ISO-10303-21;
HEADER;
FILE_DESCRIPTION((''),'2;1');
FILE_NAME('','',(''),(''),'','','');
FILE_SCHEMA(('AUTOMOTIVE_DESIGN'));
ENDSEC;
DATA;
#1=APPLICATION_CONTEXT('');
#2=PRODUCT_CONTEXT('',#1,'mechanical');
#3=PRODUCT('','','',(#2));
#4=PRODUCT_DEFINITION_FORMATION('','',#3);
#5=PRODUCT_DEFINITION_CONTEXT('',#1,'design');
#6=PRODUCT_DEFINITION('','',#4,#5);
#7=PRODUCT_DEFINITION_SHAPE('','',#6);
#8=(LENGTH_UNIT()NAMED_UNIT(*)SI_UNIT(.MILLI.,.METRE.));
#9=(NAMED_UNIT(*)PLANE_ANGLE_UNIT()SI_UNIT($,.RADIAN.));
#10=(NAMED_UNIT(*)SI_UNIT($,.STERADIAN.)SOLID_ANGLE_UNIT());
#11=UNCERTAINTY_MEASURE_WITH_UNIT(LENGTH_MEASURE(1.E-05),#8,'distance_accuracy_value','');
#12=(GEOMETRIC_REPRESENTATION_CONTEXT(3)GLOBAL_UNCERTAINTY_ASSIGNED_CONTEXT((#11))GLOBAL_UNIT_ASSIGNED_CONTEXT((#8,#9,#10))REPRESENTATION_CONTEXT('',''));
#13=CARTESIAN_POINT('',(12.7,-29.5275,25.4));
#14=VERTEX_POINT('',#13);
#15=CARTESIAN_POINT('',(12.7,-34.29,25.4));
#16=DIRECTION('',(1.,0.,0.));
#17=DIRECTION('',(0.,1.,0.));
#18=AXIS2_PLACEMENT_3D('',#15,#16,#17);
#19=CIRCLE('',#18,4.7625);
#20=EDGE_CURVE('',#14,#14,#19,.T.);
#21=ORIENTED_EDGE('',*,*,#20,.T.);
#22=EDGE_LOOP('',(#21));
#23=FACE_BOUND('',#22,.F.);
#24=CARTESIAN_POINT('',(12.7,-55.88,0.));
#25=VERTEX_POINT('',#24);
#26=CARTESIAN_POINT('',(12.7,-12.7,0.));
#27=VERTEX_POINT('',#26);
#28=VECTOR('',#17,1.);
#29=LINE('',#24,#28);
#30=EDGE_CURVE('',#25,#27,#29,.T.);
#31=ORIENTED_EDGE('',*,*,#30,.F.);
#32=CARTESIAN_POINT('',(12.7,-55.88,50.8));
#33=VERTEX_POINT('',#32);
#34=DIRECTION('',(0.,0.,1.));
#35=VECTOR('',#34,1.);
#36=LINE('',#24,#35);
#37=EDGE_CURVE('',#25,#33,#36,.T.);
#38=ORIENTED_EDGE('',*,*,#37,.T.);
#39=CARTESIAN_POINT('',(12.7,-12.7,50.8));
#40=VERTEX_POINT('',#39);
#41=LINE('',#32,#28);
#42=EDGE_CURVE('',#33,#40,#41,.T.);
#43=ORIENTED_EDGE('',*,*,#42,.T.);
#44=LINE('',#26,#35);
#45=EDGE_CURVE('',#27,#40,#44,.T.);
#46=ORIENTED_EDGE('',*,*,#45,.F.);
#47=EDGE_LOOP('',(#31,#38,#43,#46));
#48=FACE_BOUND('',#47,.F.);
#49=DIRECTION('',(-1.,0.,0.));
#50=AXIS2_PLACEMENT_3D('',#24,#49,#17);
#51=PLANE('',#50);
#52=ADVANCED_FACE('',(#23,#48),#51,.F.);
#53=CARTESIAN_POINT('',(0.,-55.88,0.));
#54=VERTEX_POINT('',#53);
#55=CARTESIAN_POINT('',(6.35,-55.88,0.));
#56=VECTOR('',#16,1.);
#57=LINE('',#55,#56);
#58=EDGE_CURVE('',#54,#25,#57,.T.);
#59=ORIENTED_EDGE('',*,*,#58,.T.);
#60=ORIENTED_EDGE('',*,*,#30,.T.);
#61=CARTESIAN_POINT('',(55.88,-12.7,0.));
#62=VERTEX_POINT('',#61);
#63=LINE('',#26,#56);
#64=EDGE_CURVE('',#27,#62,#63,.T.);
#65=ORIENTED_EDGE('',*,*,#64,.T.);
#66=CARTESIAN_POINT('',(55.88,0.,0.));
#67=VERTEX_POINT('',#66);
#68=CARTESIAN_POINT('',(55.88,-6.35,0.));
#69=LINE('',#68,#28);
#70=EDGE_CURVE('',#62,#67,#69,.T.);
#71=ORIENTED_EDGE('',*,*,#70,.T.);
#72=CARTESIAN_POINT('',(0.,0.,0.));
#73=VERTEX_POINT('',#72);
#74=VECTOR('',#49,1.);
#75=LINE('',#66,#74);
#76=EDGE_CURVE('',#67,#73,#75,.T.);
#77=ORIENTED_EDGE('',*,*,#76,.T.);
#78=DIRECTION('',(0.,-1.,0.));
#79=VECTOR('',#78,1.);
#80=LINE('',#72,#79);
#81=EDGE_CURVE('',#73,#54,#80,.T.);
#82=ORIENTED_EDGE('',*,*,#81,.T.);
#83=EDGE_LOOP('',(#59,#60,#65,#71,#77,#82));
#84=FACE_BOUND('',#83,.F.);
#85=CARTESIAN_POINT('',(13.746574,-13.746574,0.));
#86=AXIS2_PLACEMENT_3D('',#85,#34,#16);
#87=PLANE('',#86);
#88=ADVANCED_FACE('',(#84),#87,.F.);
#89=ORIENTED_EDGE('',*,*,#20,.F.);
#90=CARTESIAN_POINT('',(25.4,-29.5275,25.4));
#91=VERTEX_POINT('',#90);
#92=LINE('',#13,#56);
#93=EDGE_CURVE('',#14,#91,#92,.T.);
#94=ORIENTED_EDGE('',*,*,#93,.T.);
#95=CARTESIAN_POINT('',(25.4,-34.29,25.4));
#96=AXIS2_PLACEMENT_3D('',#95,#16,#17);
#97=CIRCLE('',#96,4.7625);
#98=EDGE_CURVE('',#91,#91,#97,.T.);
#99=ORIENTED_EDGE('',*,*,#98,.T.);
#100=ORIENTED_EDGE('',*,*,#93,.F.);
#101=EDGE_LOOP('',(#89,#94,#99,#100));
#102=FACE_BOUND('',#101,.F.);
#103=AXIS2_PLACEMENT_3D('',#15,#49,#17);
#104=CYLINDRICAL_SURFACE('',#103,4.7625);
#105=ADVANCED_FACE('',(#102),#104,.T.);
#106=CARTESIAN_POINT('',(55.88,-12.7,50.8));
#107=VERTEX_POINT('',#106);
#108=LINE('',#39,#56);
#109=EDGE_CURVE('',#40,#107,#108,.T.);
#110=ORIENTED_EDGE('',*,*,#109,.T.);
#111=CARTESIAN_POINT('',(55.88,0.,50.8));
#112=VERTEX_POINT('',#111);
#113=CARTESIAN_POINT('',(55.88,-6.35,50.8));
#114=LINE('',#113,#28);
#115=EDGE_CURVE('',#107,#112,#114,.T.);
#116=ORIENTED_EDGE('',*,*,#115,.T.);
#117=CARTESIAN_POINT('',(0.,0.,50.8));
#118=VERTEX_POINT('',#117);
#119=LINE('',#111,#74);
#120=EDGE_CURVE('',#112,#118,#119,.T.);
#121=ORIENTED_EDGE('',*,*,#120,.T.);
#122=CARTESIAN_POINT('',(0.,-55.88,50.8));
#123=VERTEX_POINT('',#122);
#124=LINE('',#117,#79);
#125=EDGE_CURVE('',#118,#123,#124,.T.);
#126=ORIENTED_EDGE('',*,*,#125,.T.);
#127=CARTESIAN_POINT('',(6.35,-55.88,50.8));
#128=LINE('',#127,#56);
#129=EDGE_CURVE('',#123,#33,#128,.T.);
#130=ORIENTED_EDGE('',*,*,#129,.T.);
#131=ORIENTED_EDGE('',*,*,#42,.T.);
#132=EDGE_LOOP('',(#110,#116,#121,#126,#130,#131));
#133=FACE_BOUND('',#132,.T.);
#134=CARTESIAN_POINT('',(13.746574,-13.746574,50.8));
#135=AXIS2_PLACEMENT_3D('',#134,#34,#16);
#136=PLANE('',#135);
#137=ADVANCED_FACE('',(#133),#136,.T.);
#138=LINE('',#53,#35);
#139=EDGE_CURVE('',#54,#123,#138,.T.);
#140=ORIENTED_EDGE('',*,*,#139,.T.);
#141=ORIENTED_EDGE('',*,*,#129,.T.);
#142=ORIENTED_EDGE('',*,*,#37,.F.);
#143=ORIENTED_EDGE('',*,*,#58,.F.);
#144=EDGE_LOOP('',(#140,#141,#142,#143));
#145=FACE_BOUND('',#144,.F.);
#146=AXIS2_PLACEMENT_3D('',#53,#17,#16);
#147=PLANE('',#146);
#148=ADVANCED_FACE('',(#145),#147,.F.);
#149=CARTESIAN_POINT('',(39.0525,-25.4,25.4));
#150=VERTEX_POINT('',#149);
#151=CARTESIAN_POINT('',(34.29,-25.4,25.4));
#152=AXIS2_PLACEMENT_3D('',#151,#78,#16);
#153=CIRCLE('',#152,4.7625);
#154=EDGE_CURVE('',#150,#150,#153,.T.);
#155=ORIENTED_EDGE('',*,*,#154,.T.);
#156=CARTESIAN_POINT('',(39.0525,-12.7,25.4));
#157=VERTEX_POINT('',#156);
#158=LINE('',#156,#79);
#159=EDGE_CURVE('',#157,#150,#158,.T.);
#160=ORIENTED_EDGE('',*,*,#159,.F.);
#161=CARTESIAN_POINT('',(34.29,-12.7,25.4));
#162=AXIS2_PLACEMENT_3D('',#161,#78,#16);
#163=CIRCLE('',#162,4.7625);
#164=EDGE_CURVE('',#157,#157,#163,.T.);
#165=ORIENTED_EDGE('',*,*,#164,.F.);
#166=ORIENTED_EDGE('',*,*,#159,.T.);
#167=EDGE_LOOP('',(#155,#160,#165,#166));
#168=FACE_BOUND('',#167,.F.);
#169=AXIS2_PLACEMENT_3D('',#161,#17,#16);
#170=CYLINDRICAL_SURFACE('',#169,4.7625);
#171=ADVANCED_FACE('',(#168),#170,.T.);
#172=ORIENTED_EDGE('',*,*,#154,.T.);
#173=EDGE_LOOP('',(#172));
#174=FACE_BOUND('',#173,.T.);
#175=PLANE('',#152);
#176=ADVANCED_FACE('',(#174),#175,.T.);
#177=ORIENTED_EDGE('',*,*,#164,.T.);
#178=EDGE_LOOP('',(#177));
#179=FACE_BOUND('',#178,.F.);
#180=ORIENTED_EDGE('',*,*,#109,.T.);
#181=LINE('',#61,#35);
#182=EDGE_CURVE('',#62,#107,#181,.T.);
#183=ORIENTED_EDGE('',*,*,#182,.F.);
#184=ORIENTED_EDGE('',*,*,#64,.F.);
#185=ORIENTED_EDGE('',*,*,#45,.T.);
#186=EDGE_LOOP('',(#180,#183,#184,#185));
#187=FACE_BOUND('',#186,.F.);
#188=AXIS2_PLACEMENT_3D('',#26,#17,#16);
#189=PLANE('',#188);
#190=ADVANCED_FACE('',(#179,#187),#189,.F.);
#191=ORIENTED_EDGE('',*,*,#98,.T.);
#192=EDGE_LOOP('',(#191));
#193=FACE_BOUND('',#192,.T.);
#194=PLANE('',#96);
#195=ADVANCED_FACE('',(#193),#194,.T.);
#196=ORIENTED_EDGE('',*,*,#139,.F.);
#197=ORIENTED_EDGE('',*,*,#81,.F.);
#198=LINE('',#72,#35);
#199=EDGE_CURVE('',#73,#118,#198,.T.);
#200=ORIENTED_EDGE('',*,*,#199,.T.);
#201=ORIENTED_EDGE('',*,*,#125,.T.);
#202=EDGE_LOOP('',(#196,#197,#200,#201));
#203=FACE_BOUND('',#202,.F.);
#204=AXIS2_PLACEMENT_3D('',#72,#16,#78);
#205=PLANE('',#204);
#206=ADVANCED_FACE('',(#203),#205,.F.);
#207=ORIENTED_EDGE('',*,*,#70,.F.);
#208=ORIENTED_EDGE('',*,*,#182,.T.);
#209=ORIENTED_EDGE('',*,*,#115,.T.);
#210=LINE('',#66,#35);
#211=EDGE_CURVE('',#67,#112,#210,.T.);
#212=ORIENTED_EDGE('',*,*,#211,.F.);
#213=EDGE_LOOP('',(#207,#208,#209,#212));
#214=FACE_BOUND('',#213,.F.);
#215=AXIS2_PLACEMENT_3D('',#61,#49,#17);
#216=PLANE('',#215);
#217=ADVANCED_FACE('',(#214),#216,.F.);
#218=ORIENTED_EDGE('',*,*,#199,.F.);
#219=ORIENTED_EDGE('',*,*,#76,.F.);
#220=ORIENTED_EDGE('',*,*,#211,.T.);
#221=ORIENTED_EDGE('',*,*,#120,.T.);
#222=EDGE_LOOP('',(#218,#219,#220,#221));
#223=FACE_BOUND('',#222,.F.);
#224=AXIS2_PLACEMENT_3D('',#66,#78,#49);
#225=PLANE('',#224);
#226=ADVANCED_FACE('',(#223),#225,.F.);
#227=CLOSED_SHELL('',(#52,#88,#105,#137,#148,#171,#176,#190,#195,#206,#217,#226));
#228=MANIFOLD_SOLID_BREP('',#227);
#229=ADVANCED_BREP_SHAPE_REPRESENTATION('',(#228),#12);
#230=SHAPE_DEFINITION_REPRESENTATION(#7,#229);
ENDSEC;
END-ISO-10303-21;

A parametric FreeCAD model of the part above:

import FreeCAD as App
import Part
import Sketcher

V = App.Vector
Q = App.Units.Quantity


def add_polygon(sketch, points):
    """Adds a closed chain of lines whose ends are joined by coincident constraints."""
    first, n = sketch.GeometryCount, len(points)
    for a, b in zip(points, points[1:] + points[:1]):
        sketch.addGeometry(Part.LineSegment(App.Vector(*a, 0), App.Vector(*b, 0)), False)
    for i in range(n):
        sketch.addConstraint(Sketcher.Constraint("Coincident", first + i, 2, first + (i + 1) % n, 1))

doc = App.newDocument("Part")
body = doc.addObject("PartDesign::Body", "Body")

sketch1 = body.newObject("Sketcher::SketchObject", "Sketch")
sketch1.AttachmentSupport = (doc.getObject("XY_Plane"), [""])
sketch1.MapMode = "FlatFace"
add_polygon(sketch1, [(0, 0), (0, -56), (13, -56), (13, -13), (56, -13), (56, 0)])
sketch1.addConstraint([
    Sketcher.Constraint("Vertical", 0),
    Sketcher.Constraint("Horizontal", 1),
    Sketcher.Constraint("Vertical", 2),
    Sketcher.Constraint("Horizontal", 3),
    Sketcher.Constraint("Vertical", 4),
    Sketcher.Constraint("Horizontal", 5),
    Sketcher.Constraint("Coincident", 5, 2, -1, 1),
    Sketcher.Constraint("Equal", 5, 0),
    Sketcher.Constraint("Equal", 3, 2),
    Sketcher.Constraint("DistanceX", 1, 1, 1, 2, Q("0.5 in")),
    Sketcher.Constraint("DistanceX", 3, 1, 3, 2, Q("1.7 in")),
])
pad1 = body.newObject("PartDesign::Pad", "Pad")
pad1.Profile = sketch1
pad1.Length = Q("2 in")

sketch2 = body.newObject("Sketcher::SketchObject", "Sketch001")
sketch2.AttachmentSupport = (doc.getObject("XZ_Plane"), [""])
sketch2.MapMode = "FlatFace"
sketch2.AttachmentOffset = App.Placement(V(0, 0, 0.5 * 25.4), App.Rotation())
sketch2.addGeometry(Part.Circle(V(34.3, 25.4, 0), V(0, 0, 1), 4.8), False)
sketch2.addConstraint([
    Sketcher.Constraint("Diameter", 0, Q("0.375 in")),
    Sketcher.Constraint("DistanceY", -1, 1, 0, 3, Q("1 in")),
    Sketcher.Constraint("DistanceX", -1, 1, 0, 3, Q("1.35 in")),
])
pad2 = body.newObject("PartDesign::Pad", "Pad001")
pad2.Profile = sketch2
pad2.Length = Q("0.5 in")

sketch3 = body.newObject("Sketcher::SketchObject", "Sketch002")
sketch3.AttachmentSupport = (doc.getObject("YZ_Plane"), [""])
sketch3.MapMode = "FlatFace"
sketch3.AttachmentOffset = App.Placement(V(0, 0, 0.5 * 25.4), App.Rotation())
sketch3.addGeometry(Part.Circle(V(-34.3, 25.4, 0), V(0, 0, 1), 4.8), False)
sketch3.addConstraint([
    Sketcher.Constraint("Diameter", 0, Q("0.375 in")),
    Sketcher.Constraint("DistanceY", -1, 1, 0, 3, Q("1 in")),
    Sketcher.Constraint("DistanceX", 0, 3, -1, 1, Q("1.35 in")),
])
pad3 = body.newObject("PartDesign::Pad", "Pad002")
pad3.Profile = sketch3
pad3.Length = Q("0.5 in")

doc.recompute()
